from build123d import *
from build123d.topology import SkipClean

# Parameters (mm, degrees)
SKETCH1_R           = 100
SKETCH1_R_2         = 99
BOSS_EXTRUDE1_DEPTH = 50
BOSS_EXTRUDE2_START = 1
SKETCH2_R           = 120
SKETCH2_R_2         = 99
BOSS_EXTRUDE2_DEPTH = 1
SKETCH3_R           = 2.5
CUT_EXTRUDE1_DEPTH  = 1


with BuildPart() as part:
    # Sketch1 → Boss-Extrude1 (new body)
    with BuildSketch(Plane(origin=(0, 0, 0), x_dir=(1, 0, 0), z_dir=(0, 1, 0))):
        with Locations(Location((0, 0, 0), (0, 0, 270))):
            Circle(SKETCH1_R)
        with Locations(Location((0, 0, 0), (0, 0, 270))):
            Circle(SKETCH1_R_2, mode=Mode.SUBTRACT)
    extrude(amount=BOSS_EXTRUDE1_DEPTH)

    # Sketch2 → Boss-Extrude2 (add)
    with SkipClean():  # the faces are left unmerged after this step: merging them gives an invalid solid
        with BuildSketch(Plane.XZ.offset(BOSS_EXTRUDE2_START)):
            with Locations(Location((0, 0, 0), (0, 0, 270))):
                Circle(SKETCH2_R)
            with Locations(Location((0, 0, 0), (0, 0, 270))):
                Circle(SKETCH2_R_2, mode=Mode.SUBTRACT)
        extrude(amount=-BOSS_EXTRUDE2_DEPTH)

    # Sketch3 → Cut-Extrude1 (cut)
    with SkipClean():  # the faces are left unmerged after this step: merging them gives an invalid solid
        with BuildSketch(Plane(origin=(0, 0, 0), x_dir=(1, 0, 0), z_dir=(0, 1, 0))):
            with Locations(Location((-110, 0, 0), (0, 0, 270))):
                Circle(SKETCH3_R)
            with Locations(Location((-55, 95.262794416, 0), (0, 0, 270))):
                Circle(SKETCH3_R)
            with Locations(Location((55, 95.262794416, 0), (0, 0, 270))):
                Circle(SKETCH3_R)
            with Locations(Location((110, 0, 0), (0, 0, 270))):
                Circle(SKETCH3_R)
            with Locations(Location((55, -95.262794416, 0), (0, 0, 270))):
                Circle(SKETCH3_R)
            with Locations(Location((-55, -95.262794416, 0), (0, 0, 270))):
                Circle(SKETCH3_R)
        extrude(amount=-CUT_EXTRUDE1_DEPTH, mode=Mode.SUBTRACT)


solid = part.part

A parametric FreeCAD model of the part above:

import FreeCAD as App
import Part
import Sketcher

V = App.Vector

doc = App.newDocument("Part")
body = doc.addObject("PartDesign::Body", "Body")

sketch1 = body.newObject("Sketcher::SketchObject", "Sketch")
sketch1.AttachmentSupport = (doc.getObject("XZ_Plane"), [""])
sketch1.MapMode = "FlatFace"
sketch1.addGeometry(Part.Circle(V(0, 0, 0), V(0, 0, 1), 100), False)
sketch1.addGeometry(Part.Circle(V(0, 0, 0), V(0, 0, 1), 99), False)
sketch1.addConstraint(Sketcher.Constraint("Coincident", 0, 3, -1, 1))
sketch1.addConstraint(Sketcher.Constraint("Coincident", 1, 3, -1, 1))
sketch1.addConstraint(Sketcher.Constraint("Diameter", 0, 200.0))
sketch1.addConstraint(Sketcher.Constraint("Diameter", 1, 198.0))
pad1 = body.newObject("PartDesign::Pad", "Pad")
pad1.Profile = sketch1
pad1.Length = 50
pad1.Reversed = True

sketch2 = body.newObject("Sketcher::SketchObject", "Sketch001")
sketch2.AttachmentSupport = (doc.getObject("XZ_Plane"), [""])
sketch2.MapMode = "FlatFace"
sketch2.AttachmentOffset = App.Placement(V(0, 0, 1), App.Rotation())
sketch2.addGeometry(Part.Circle(V(0, 0, 0), V(0, 0, 1), 120), False)
sketch2.addGeometry(Part.Circle(V(0, 0, 0), V(0, 0, 1), 99), False)
sketch2.addConstraint(Sketcher.Constraint("Coincident", 0, 3, -1, 1))
sketch2.addConstraint(Sketcher.Constraint("Coincident", 1, 3, -1, 1))
sketch2.addConstraint(Sketcher.Constraint("Diameter", 0, 240.0))
sketch2.addConstraint(Sketcher.Constraint("Diameter", 1, 198.0))
pad2 = body.newObject("PartDesign::Pad", "Pad001")
pad2.Profile = sketch2
pad2.Length = 1
pad2.Reversed = True

sketch3 = body.newObject("Sketcher::SketchObject", "Sketch002")
sketch3.AttachmentSupport = (doc.getObject("XZ_Plane"), [""])
sketch3.MapMode = "FlatFace"
sketch3.addGeometry(Part.Circle(V(-110, 0, 0), V(0, 0, 1), 2.5), False)
sketch3.addGeometry(Part.Circle(V(-55, -95.262794, 0), V(0, 0, 1), 2.5), False)
sketch3.addGeometry(Part.Circle(V(55, -95.262794, 0), V(0, 0, 1), 2.5), False)
sketch3.addGeometry(Part.Circle(V(110, 0, 0), V(0, 0, 1), 2.5), False)
sketch3.addGeometry(Part.Circle(V(55, 95.262794, 0), V(0, 0, 1), 2.5), False)
sketch3.addGeometry(Part.Circle(V(-55, 95.262794, 0), V(0, 0, 1), 2.5), False)
sketch3.addConstraint(Sketcher.Constraint("Equal", 0, 1))
sketch3.addConstraint(Sketcher.Constraint("Equal", 1, 2))
sketch3.addConstraint(Sketcher.Constraint("Equal", 2, 3))
sketch3.addConstraint(Sketcher.Constraint("Equal", 3, 4))
sketch3.addConstraint(Sketcher.Constraint("Equal", 4, 5))
sketch3.addConstraint(Sketcher.Constraint("Symmetric", 0, 3, 3, 3, -1, 1))
sketch3.addConstraint(Sketcher.Constraint("Symmetric", 1, 3, 4, 3, -1, 1))
sketch3.addConstraint(Sketcher.Constraint("Symmetric", 2, 3, 5, 3, -1, 1))
sketch3.addConstraint(Sketcher.Constraint("Symmetric", 1, 3, 2, 3, -2))
sketch3.addConstraint(Sketcher.Constraint("PointOnObject", 0, 3, -1))
sketch3.addConstraint(Sketcher.Constraint("Diameter", 0, 5.0))
sketch3.addConstraint(Sketcher.Constraint("DistanceX", 0, 3, -1, 1, 110.0))
sketch3.addConstraint(Sketcher.Constraint("DistanceX", 1, 3, -1, 1, 55.0))
sketch3.addConstraint(Sketcher.Constraint("DistanceY", 2, 3, 4, 3, 190.525589))
pocket1 = body.newObject("PartDesign::Pocket", "Pocket")
pocket1.Profile = sketch3
pocket1.Length = 1
pocket1.Reversed = True

doc.recompute()
